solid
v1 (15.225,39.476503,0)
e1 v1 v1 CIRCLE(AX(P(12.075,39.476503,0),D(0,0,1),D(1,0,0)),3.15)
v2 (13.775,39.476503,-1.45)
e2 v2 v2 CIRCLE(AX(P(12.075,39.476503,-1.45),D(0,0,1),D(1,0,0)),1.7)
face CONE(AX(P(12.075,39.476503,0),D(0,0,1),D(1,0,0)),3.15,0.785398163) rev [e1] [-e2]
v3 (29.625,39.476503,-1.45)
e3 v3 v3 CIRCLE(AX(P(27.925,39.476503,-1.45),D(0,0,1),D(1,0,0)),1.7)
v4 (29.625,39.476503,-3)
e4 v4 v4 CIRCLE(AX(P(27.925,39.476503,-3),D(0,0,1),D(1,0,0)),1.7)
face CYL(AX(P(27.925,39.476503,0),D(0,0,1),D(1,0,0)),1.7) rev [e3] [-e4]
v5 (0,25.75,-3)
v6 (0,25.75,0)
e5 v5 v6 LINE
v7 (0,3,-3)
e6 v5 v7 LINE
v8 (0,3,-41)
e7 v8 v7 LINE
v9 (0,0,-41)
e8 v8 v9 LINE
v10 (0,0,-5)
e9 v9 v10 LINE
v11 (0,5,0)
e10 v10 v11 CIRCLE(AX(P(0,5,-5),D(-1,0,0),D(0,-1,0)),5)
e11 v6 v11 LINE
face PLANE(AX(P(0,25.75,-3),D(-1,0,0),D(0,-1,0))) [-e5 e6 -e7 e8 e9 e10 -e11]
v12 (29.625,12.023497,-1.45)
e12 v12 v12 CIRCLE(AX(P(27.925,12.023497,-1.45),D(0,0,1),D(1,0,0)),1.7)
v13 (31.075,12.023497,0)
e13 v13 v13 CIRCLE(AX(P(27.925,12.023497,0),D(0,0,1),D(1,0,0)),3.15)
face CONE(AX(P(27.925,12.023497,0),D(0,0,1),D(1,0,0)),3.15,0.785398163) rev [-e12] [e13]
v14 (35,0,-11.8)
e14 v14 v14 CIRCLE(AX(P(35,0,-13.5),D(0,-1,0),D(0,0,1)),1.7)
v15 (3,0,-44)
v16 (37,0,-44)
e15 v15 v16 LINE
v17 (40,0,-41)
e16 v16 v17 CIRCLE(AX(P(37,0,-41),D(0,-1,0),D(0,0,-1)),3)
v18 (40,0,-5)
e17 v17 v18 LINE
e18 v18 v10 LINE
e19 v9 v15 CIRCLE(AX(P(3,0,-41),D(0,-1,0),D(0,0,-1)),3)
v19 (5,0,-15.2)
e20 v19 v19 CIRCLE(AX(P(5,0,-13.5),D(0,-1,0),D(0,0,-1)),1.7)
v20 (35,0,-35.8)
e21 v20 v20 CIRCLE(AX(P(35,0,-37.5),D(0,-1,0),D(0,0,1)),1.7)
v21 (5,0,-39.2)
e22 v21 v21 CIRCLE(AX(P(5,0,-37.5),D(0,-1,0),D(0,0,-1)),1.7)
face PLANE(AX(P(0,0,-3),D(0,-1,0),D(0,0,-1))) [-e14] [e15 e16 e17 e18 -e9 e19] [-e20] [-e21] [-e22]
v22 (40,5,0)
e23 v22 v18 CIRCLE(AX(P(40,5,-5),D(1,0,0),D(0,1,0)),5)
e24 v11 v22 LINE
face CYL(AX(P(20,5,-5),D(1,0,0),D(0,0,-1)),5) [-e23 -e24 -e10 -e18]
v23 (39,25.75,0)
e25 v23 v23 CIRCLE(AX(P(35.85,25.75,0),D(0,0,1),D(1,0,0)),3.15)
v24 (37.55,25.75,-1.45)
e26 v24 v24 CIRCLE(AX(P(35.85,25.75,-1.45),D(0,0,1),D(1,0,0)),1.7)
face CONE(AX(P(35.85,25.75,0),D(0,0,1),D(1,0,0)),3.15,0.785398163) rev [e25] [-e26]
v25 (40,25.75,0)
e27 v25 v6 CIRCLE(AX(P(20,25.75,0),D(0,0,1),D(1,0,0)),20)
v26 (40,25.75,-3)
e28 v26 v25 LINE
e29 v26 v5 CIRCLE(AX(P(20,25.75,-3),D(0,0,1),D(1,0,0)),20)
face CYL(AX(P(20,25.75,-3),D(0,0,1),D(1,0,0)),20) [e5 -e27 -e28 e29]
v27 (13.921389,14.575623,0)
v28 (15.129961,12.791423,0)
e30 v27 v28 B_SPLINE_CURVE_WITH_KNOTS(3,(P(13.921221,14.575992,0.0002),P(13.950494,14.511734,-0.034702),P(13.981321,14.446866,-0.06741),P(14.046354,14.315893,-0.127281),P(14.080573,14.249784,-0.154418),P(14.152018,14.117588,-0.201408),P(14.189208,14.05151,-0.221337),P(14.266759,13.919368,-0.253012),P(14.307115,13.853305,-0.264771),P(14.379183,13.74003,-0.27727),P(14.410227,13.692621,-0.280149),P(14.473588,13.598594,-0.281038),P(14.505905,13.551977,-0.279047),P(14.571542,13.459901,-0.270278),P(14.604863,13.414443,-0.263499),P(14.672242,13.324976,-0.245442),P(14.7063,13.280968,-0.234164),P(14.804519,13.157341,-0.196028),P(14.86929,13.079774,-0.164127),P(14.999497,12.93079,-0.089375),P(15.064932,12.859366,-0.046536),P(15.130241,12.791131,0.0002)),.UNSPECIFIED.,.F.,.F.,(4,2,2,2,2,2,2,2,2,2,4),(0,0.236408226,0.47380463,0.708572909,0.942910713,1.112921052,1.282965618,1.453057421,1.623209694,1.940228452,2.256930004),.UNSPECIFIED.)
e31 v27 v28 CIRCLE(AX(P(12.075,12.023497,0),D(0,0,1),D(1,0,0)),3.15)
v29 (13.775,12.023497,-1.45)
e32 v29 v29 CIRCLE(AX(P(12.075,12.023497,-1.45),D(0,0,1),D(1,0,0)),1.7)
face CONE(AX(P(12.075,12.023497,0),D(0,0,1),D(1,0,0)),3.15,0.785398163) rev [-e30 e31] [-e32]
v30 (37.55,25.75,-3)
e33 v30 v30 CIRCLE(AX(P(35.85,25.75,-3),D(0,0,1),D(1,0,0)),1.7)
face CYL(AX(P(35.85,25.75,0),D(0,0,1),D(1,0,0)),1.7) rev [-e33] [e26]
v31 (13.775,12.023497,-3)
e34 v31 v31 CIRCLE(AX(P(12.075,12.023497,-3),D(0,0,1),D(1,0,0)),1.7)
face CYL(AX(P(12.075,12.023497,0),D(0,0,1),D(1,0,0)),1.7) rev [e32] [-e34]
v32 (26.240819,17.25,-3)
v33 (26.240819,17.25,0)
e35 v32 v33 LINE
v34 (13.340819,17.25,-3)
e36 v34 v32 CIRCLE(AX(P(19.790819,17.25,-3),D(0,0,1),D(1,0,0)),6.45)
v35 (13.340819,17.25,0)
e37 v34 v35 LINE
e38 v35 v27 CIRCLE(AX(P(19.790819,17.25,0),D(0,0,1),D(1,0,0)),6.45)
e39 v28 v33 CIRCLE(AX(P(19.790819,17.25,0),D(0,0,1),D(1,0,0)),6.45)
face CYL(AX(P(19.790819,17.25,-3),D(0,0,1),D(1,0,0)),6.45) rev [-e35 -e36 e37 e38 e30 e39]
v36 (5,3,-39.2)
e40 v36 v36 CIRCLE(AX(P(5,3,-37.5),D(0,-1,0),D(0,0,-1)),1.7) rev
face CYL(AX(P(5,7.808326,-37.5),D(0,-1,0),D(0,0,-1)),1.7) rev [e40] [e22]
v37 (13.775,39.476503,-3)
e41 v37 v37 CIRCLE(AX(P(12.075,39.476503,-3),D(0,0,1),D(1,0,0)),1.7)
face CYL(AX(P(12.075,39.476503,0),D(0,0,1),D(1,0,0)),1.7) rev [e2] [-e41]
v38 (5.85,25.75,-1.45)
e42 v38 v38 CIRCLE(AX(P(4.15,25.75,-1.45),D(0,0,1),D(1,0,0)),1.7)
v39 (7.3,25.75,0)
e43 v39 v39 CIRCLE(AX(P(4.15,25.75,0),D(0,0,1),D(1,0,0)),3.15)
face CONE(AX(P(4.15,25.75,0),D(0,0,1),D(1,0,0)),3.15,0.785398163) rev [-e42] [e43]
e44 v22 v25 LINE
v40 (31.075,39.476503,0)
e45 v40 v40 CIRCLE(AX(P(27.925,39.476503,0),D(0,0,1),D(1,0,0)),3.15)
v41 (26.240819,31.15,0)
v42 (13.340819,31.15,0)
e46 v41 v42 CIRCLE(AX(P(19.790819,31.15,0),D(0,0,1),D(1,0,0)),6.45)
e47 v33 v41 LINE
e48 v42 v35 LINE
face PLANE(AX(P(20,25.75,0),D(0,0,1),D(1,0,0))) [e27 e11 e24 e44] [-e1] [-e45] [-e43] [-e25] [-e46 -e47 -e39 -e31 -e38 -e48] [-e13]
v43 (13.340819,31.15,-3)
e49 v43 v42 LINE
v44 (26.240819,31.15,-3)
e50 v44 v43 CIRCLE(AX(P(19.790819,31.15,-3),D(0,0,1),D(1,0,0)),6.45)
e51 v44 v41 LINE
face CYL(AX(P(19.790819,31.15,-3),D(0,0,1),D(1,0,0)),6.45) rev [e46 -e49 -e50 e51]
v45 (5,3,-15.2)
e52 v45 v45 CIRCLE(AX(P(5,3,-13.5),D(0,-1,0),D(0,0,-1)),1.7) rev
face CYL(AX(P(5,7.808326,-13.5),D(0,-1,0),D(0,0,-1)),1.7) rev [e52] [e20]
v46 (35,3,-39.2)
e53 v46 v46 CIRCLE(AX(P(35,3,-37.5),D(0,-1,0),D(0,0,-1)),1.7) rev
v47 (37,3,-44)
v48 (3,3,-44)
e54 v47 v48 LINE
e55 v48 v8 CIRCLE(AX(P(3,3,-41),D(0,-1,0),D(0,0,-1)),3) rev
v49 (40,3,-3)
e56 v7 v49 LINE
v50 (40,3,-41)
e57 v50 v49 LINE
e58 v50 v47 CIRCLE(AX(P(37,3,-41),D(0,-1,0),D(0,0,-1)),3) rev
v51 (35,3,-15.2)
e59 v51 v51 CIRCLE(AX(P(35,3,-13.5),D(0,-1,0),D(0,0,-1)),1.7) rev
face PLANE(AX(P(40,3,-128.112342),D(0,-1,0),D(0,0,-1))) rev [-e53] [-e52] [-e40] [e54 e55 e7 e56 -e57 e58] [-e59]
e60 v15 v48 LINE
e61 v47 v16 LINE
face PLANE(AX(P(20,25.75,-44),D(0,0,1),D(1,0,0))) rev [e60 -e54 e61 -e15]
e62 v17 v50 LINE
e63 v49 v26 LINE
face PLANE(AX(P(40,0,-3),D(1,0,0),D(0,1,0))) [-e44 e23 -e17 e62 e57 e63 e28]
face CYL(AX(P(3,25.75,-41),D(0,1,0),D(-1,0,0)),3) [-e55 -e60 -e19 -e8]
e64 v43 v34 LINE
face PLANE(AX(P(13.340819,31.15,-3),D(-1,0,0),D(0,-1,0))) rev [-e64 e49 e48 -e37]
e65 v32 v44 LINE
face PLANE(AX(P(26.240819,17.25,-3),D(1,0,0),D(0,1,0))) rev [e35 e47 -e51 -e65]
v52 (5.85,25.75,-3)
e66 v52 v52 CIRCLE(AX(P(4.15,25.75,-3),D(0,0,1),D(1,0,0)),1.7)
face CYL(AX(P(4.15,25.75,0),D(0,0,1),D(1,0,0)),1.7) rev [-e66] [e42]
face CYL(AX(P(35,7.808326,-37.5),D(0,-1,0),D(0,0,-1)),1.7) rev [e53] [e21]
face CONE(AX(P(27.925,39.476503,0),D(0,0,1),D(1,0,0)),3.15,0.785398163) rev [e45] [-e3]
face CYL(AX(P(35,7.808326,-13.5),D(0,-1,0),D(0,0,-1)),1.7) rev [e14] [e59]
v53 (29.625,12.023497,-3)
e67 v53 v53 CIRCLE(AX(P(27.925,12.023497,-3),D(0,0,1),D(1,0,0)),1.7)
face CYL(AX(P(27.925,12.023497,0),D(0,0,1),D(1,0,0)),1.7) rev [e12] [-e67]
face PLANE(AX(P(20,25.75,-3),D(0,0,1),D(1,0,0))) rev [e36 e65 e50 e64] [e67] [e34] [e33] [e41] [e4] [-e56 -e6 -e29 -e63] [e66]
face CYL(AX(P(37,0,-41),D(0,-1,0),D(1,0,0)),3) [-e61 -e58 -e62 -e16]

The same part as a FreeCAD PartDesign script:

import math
import FreeCAD as App
import Part
import Sketcher

V = App.Vector
Q = App.Units.Quantity


def edges_at(feature, points):
    """Names of the edges that pass closest to the given points."""
    edges = feature.Shape.Edges
    near = lambda p: min(range(len(edges)), key=lambda i: edges[i].distToShape(Part.Vertex(*p))[0])
    return sorted({f"Edge{near(p) + 1}" for p in points})

doc = App.newDocument("Part")
body = doc.addObject("PartDesign::Body", "Body")

sketch1 = body.newObject("Sketcher::SketchObject", "Sketch")
sketch1.AttachmentSupport = (doc.getObject("XY_Plane"), [""])
sketch1.MapMode = "FlatFace"
sketch1.addGeometry(Part.LineSegment(V(0, 0, 0), V(40, 0, 0)), False)
sketch1.addGeometry(Part.LineSegment(V(40, 0, 0), V(40, 26, 0)), False)
sketch1.addGeometry(Part.ArcOfCircle(Part.Circle(V(20, 26, 0), V(0, 0, 1), 20), math.radians(0), math.radians(180)), False)
sketch1.addGeometry(Part.LineSegment(V(0, 26, 0), V(0, 0, 0)), False)
sketch1.addGeometry(Part.LineSegment(V(26, 31, 0), V(26, 17, 0)), False)
sketch1.addGeometry(Part.ArcOfCircle(Part.Circle(V(20, 17, 0), V(0, 0, 1), 6), math.radians(180), math.radians(360)), False)
sketch1.addGeometry(Part.LineSegment(V(13, 17, 0), V(13, 31, 0)), False)
sketch1.addGeometry(Part.ArcOfCircle(Part.Circle(V(20, 31, 0), V(0, 0, 1), 6), math.radians(0), math.radians(180)), False)
sketch1.addConstraint(Sketcher.Constraint("Coincident", 0, 2, 1, 1))
sketch1.addConstraint(Sketcher.Constraint("Tangent", 1, 2, 2, 1))
sketch1.addConstraint(Sketcher.Constraint("Tangent", 2, 2, 3, 1))
sketch1.addConstraint(Sketcher.Constraint("Coincident", 3, 2, 0, 1))
sketch1.addConstraint(Sketcher.Constraint("Tangent", 4, 2, 5, 2))
sketch1.addConstraint(Sketcher.Constraint("Tangent", 5, 1, 6, 1))
sketch1.addConstraint(Sketcher.Constraint("Tangent", 6, 2, 7, 2))
sketch1.addConstraint(Sketcher.Constraint("Tangent", 7, 1, 4, 1))
sketch1.addConstraint(Sketcher.Constraint("Horizontal", 0))
sketch1.addConstraint(Sketcher.Constraint("Vertical", 1))
sketch1.addConstraint(Sketcher.Constraint("Vertical", 3))
sketch1.addConstraint(Sketcher.Constraint("Vertical", 4))
sketch1.addConstraint(Sketcher.Constraint("Vertical", 6))
sketch1.addConstraint(Sketcher.Constraint("Coincident", 3, 2, -1, 1))
sketch1.addConstraint(Sketcher.Constraint("Radius", 2, 20.0))
sketch1.addConstraint(Sketcher.Constraint("Radius", 5, 6.45))
sketch1.addConstraint(Sketcher.Constraint("DistanceY", 4, 2, 4, 1, 13.9))
sketch1.addConstraint(Sketcher.Constraint("DistanceY", 1, 1, 1, 2, 25.75))
sketch1.addConstraint(Sketcher.Constraint("DistanceY", 5, 3, 2, 3, 8.5))
sketch1.addConstraint(Sketcher.Constraint("DistanceX", -1, 1, 5, 3, 19.790819))
pad1 = body.newObject("PartDesign::Pad", "Pad")
pad1.Profile = sketch1
pad1.Length = 3
pad1.Reversed = True

sketch2 = body.newObject("Sketcher::SketchObject", "Sketch001")
sketch2.AttachmentSupport = (doc.getObject("YZ_Plane"), [""])
sketch2.MapMode = "FlatFace"
sketch2.AttachmentOffset = App.Placement(V(0, 0, 4.15), App.Rotation())
sketch2.addGeometry(Part.LineSegment(V(25.8, -3, 0), V(25.8, 0, 0)), False)
sketch2.addGeometry(Part.LineSegment(V(25.8, 0, 0), V(22.6, 0, 0)), False)
sketch2.addGeometry(Part.LineSegment(V(22.6, 0, 0), V(24.1, -1.4, 0)), False)
sketch2.addGeometry(Part.LineSegment(V(24.1, -1.4, 0), V(24.1, -3, 0)), False)
sketch2.addGeometry(Part.LineSegment(V(24.1, -3, 0), V(25.8, -3, 0)), False)
sketch2.addGeometry(Part.LineSegment(V(25.8, 0, 0), V(25.8, -3, 0)), True)
sketch2.addConstraint(Sketcher.Constraint("Coincident", 0, 2, 1, 1))
sketch2.addConstraint(Sketcher.Constraint("Coincident", 1, 2, 2, 1))
sketch2.addConstraint(Sketcher.Constraint("Coincident", 2, 2, 3, 1))
sketch2.addConstraint(Sketcher.Constraint("Coincident", 3, 2, 4, 1))
sketch2.addConstraint(Sketcher.Constraint("Coincident", 4, 2, 0, 1))
sketch2.addConstraint(Sketcher.Constraint("Vertical", 0))
sketch2.addConstraint(Sketcher.Constraint("Horizontal", 1))
sketch2.addConstraint(Sketcher.Constraint("Vertical", 3))
sketch2.addConstraint(Sketcher.Constraint("Horizontal", 4))
sketch2.addConstraint(Sketcher.Constraint("Vertical", 5))
sketch2.addConstraint(Sketcher.Constraint("Coincident", 5, 1, 0, 2))
sketch2.addConstraint(Sketcher.Constraint("PointOnObject", 0, 2, -1))
sketch2.addConstraint(Sketcher.Constraint("Horizontal", 3, 2, 5, 2))
sketch2.addConstraint(Sketcher.Constraint("DistanceY", 0, 1, 0, 2, 3.0))
sketch2.addConstraint(Sketcher.Constraint("Angle", 2, Q("-45 deg")))
sketch2.addConstraint(Sketcher.Constraint("DistanceX", 4, 1, 4, 2, 1.7))
sketch2.addConstraint(Sketcher.Constraint("DistanceX", 1, 2, 1, 1, 3.15))
sketch2.addConstraint(Sketcher.Constraint("DistanceX", -1, 1, 1, 2, 22.6))
groove = body.newObject("PartDesign::Groove", "Groove")
groove.Profile = sketch2
groove.ReferenceAxis = (sketch2, ["Axis0"])
groove.Angle = 360
doc.recompute()

datumline = body.newObject("PartDesign::Line", "DatumLine")
datumline.Placement = App.Placement(V(0, 0, 0), App.Rotation(V(0, 0, 1), V(0.5, 0.866025404, 0)))
linearpattern = body.newObject("PartDesign::LinearPattern", "LinearPattern")
linearpattern.Originals = [groove]
linearpattern.Direction = (datumline, [""])
linearpattern.Mode = "offset"
linearpattern.Offset = 15.85
linearpattern.Occurrences = 2
body.Tip = linearpattern
doc.recompute()

datumline2 = body.newObject("PartDesign::Line", "DatumLine001")
datumline2.Placement = App.Placement(V(0, 0, 0), App.Rotation(V(0, 0, 1), V(0.866025404, 0.5, 0)))
linearpattern2 = body.newObject("PartDesign::LinearPattern", "LinearPattern001")
linearpattern2.Originals = [groove]
linearpattern2.Direction = (datumline2, [""])
linearpattern2.Mode = "offset"
linearpattern2.Offset = 27.453005
linearpattern2.Occurrences = 2
body.Tip = linearpattern2
doc.recompute()

linearpattern3 = body.newObject("PartDesign::LinearPattern", "LinearPattern002")
linearpattern3.Originals = [groove]
linearpattern3.Direction = (doc.getObject("X_Axis"), [""])
linearpattern3.Mode = "offset"
linearpattern3.Offset = 31.7
linearpattern3.Occurrences = 2
body.Tip = linearpattern3
doc.recompute()

datumline3 = body.newObject("PartDesign::Line", "DatumLine002")
datumline3.Placement = App.Placement(V(0, 0, 0), App.Rotation(V(0, 0, 1), V(0.866025404, -0.5, 0)))
linearpattern4 = body.newObject("PartDesign::LinearPattern", "LinearPattern003")
linearpattern4.Originals = [groove]
linearpattern4.Direction = (datumline3, [""])
linearpattern4.Mode = "offset"
linearpattern4.Offset = 27.453005
linearpattern4.Occurrences = 2
body.Tip = linearpattern4
doc.recompute()

datumline4 = body.newObject("PartDesign::Line", "DatumLine003")
datumline4.Placement = App.Placement(V(0, 0, 0), App.Rotation(V(0, 0, 1), V(0.5, -0.866025404, 0)))
linearpattern5 = body.newObject("PartDesign::LinearPattern", "LinearPattern004")
linearpattern5.Originals = [groove]
linearpattern5.Direction = (datumline4, [""])
linearpattern5.Mode = "offset"
linearpattern5.Offset = 15.85
linearpattern5.Occurrences = 2
body.Tip = linearpattern5

sketch3 = body.newObject("Sketcher::SketchObject", "Sketch002")
sketch3.AttachmentSupport = (doc.getObject("XY_Plane"), [""])
sketch3.MapMode = "FlatFace"
sketch3.AttachmentOffset = App.Placement(V(0, 0, -3), App.Rotation())
sketch3.addGeometry(Part.LineSegment(V(40, 3, 0), V(40, 0, 0)), False)
sketch3.addGeometry(Part.LineSegment(V(40, 0, 0), V(0, 0, 0)), False)
sketch3.addGeometry(Part.LineSegment(V(0, 0, 0), V(0, 3, 0)), False)
sketch3.addGeometry(Part.LineSegment(V(0, 3, 0), V(40, 3, 0)), False)
sketch3.addConstraint(Sketcher.Constraint("Coincident", 0, 2, 1, 1))
sketch3.addConstraint(Sketcher.Constraint("Coincident", 1, 2, 2, 1))
sketch3.addConstraint(Sketcher.Constraint("Coincident", 2, 2, 3, 1))
sketch3.addConstraint(Sketcher.Constraint("Coincident", 3, 2, 0, 1))
sketch3.addConstraint(Sketcher.Constraint("Vertical", 0))
sketch3.addConstraint(Sketcher.Constraint("Horizontal", 1))
sketch3.addConstraint(Sketcher.Constraint("Vertical", 2))
sketch3.addConstraint(Sketcher.Constraint("Horizontal", 3))
sketch3.addConstraint(Sketcher.Constraint("Coincident", 1, 2, -1, 1))
sketch3.addConstraint(Sketcher.Constraint("DistanceX", 1, 2, 1, 1, 40.0))
sketch3.addConstraint(Sketcher.Constraint("DistanceY", 0, 2, 0, 1, 3.0))
pad2 = body.newObject("PartDesign::Pad", "Pad001")
pad2.Profile = sketch3
pad2.Length = 41
pad2.Reversed = True

sketch4 = body.newObject("Sketcher::SketchObject", "Sketch003")
sketch4.AttachmentSupport = (doc.getObject("XZ_Plane"), [""])
sketch4.MapMode = "FlatFace"
sketch4.addGeometry(Part.Circle(V(5, -37.5, 0), V(0, 0, 1), 1.7), False)
sketch4.addGeometry(Part.Circle(V(5, -13.5, 0), V(0, 0, 1), 1.7), False)
sketch4.addGeometry(Part.Circle(V(35, -37.5, 0), V(0, 0, 1), 1.7), False)
sketch4.addGeometry(Part.Circle(V(35, -13.5, 0), V(0, 0, 1), 1.7), False)
sketch4.addConstraint(Sketcher.Constraint("Equal", 0, 1))
sketch4.addConstraint(Sketcher.Constraint("Equal", 1, 2))
sketch4.addConstraint(Sketcher.Constraint("Equal", 2, 3))
sketch4.addConstraint(Sketcher.Constraint("Horizontal", 0, 3, 2, 3))
sketch4.addConstraint(Sketcher.Constraint("Horizontal", 1, 3, 3, 3))
sketch4.addConstraint(Sketcher.Constraint("Vertical", 0, 3, 1, 3))
sketch4.addConstraint(Sketcher.Constraint("Vertical", 2, 3, 3, 3))
sketch4.addConstraint(Sketcher.Constraint("Diameter", 0, 3.4))
sketch4.addConstraint(Sketcher.Constraint("DistanceX", -1, 1, 0, 3, 5.0))
sketch4.addConstraint(Sketcher.Constraint("DistanceX", -1, 1, 2, 3, 35.0))
sketch4.addConstraint(Sketcher.Constraint("DistanceY", 0, 3, 1, 3, 24.0))
sketch4.addConstraint(Sketcher.Constraint("DistanceY", 0, 3, -1, 1, 37.5))
pocket1 = body.newObject("PartDesign::Pocket", "Pocket")
pocket1.Profile = sketch4
pocket1.Length = 3
doc.recompute()

fillet = body.newObject("PartDesign::Fillet", "Fillet")
fillet.Base = (pocket1, edges_at(pocket1, [(0, 1.5, -44), (40, 1.5, -44)]))
fillet.Radius = 3
doc.recompute()

fillet2 = body.newObject("PartDesign::Fillet", "Fillet001")
fillet2.Base = (fillet, edges_at(fillet, [(20, 0, 0)]))
fillet2.Radius = 5

doc.recompute()
